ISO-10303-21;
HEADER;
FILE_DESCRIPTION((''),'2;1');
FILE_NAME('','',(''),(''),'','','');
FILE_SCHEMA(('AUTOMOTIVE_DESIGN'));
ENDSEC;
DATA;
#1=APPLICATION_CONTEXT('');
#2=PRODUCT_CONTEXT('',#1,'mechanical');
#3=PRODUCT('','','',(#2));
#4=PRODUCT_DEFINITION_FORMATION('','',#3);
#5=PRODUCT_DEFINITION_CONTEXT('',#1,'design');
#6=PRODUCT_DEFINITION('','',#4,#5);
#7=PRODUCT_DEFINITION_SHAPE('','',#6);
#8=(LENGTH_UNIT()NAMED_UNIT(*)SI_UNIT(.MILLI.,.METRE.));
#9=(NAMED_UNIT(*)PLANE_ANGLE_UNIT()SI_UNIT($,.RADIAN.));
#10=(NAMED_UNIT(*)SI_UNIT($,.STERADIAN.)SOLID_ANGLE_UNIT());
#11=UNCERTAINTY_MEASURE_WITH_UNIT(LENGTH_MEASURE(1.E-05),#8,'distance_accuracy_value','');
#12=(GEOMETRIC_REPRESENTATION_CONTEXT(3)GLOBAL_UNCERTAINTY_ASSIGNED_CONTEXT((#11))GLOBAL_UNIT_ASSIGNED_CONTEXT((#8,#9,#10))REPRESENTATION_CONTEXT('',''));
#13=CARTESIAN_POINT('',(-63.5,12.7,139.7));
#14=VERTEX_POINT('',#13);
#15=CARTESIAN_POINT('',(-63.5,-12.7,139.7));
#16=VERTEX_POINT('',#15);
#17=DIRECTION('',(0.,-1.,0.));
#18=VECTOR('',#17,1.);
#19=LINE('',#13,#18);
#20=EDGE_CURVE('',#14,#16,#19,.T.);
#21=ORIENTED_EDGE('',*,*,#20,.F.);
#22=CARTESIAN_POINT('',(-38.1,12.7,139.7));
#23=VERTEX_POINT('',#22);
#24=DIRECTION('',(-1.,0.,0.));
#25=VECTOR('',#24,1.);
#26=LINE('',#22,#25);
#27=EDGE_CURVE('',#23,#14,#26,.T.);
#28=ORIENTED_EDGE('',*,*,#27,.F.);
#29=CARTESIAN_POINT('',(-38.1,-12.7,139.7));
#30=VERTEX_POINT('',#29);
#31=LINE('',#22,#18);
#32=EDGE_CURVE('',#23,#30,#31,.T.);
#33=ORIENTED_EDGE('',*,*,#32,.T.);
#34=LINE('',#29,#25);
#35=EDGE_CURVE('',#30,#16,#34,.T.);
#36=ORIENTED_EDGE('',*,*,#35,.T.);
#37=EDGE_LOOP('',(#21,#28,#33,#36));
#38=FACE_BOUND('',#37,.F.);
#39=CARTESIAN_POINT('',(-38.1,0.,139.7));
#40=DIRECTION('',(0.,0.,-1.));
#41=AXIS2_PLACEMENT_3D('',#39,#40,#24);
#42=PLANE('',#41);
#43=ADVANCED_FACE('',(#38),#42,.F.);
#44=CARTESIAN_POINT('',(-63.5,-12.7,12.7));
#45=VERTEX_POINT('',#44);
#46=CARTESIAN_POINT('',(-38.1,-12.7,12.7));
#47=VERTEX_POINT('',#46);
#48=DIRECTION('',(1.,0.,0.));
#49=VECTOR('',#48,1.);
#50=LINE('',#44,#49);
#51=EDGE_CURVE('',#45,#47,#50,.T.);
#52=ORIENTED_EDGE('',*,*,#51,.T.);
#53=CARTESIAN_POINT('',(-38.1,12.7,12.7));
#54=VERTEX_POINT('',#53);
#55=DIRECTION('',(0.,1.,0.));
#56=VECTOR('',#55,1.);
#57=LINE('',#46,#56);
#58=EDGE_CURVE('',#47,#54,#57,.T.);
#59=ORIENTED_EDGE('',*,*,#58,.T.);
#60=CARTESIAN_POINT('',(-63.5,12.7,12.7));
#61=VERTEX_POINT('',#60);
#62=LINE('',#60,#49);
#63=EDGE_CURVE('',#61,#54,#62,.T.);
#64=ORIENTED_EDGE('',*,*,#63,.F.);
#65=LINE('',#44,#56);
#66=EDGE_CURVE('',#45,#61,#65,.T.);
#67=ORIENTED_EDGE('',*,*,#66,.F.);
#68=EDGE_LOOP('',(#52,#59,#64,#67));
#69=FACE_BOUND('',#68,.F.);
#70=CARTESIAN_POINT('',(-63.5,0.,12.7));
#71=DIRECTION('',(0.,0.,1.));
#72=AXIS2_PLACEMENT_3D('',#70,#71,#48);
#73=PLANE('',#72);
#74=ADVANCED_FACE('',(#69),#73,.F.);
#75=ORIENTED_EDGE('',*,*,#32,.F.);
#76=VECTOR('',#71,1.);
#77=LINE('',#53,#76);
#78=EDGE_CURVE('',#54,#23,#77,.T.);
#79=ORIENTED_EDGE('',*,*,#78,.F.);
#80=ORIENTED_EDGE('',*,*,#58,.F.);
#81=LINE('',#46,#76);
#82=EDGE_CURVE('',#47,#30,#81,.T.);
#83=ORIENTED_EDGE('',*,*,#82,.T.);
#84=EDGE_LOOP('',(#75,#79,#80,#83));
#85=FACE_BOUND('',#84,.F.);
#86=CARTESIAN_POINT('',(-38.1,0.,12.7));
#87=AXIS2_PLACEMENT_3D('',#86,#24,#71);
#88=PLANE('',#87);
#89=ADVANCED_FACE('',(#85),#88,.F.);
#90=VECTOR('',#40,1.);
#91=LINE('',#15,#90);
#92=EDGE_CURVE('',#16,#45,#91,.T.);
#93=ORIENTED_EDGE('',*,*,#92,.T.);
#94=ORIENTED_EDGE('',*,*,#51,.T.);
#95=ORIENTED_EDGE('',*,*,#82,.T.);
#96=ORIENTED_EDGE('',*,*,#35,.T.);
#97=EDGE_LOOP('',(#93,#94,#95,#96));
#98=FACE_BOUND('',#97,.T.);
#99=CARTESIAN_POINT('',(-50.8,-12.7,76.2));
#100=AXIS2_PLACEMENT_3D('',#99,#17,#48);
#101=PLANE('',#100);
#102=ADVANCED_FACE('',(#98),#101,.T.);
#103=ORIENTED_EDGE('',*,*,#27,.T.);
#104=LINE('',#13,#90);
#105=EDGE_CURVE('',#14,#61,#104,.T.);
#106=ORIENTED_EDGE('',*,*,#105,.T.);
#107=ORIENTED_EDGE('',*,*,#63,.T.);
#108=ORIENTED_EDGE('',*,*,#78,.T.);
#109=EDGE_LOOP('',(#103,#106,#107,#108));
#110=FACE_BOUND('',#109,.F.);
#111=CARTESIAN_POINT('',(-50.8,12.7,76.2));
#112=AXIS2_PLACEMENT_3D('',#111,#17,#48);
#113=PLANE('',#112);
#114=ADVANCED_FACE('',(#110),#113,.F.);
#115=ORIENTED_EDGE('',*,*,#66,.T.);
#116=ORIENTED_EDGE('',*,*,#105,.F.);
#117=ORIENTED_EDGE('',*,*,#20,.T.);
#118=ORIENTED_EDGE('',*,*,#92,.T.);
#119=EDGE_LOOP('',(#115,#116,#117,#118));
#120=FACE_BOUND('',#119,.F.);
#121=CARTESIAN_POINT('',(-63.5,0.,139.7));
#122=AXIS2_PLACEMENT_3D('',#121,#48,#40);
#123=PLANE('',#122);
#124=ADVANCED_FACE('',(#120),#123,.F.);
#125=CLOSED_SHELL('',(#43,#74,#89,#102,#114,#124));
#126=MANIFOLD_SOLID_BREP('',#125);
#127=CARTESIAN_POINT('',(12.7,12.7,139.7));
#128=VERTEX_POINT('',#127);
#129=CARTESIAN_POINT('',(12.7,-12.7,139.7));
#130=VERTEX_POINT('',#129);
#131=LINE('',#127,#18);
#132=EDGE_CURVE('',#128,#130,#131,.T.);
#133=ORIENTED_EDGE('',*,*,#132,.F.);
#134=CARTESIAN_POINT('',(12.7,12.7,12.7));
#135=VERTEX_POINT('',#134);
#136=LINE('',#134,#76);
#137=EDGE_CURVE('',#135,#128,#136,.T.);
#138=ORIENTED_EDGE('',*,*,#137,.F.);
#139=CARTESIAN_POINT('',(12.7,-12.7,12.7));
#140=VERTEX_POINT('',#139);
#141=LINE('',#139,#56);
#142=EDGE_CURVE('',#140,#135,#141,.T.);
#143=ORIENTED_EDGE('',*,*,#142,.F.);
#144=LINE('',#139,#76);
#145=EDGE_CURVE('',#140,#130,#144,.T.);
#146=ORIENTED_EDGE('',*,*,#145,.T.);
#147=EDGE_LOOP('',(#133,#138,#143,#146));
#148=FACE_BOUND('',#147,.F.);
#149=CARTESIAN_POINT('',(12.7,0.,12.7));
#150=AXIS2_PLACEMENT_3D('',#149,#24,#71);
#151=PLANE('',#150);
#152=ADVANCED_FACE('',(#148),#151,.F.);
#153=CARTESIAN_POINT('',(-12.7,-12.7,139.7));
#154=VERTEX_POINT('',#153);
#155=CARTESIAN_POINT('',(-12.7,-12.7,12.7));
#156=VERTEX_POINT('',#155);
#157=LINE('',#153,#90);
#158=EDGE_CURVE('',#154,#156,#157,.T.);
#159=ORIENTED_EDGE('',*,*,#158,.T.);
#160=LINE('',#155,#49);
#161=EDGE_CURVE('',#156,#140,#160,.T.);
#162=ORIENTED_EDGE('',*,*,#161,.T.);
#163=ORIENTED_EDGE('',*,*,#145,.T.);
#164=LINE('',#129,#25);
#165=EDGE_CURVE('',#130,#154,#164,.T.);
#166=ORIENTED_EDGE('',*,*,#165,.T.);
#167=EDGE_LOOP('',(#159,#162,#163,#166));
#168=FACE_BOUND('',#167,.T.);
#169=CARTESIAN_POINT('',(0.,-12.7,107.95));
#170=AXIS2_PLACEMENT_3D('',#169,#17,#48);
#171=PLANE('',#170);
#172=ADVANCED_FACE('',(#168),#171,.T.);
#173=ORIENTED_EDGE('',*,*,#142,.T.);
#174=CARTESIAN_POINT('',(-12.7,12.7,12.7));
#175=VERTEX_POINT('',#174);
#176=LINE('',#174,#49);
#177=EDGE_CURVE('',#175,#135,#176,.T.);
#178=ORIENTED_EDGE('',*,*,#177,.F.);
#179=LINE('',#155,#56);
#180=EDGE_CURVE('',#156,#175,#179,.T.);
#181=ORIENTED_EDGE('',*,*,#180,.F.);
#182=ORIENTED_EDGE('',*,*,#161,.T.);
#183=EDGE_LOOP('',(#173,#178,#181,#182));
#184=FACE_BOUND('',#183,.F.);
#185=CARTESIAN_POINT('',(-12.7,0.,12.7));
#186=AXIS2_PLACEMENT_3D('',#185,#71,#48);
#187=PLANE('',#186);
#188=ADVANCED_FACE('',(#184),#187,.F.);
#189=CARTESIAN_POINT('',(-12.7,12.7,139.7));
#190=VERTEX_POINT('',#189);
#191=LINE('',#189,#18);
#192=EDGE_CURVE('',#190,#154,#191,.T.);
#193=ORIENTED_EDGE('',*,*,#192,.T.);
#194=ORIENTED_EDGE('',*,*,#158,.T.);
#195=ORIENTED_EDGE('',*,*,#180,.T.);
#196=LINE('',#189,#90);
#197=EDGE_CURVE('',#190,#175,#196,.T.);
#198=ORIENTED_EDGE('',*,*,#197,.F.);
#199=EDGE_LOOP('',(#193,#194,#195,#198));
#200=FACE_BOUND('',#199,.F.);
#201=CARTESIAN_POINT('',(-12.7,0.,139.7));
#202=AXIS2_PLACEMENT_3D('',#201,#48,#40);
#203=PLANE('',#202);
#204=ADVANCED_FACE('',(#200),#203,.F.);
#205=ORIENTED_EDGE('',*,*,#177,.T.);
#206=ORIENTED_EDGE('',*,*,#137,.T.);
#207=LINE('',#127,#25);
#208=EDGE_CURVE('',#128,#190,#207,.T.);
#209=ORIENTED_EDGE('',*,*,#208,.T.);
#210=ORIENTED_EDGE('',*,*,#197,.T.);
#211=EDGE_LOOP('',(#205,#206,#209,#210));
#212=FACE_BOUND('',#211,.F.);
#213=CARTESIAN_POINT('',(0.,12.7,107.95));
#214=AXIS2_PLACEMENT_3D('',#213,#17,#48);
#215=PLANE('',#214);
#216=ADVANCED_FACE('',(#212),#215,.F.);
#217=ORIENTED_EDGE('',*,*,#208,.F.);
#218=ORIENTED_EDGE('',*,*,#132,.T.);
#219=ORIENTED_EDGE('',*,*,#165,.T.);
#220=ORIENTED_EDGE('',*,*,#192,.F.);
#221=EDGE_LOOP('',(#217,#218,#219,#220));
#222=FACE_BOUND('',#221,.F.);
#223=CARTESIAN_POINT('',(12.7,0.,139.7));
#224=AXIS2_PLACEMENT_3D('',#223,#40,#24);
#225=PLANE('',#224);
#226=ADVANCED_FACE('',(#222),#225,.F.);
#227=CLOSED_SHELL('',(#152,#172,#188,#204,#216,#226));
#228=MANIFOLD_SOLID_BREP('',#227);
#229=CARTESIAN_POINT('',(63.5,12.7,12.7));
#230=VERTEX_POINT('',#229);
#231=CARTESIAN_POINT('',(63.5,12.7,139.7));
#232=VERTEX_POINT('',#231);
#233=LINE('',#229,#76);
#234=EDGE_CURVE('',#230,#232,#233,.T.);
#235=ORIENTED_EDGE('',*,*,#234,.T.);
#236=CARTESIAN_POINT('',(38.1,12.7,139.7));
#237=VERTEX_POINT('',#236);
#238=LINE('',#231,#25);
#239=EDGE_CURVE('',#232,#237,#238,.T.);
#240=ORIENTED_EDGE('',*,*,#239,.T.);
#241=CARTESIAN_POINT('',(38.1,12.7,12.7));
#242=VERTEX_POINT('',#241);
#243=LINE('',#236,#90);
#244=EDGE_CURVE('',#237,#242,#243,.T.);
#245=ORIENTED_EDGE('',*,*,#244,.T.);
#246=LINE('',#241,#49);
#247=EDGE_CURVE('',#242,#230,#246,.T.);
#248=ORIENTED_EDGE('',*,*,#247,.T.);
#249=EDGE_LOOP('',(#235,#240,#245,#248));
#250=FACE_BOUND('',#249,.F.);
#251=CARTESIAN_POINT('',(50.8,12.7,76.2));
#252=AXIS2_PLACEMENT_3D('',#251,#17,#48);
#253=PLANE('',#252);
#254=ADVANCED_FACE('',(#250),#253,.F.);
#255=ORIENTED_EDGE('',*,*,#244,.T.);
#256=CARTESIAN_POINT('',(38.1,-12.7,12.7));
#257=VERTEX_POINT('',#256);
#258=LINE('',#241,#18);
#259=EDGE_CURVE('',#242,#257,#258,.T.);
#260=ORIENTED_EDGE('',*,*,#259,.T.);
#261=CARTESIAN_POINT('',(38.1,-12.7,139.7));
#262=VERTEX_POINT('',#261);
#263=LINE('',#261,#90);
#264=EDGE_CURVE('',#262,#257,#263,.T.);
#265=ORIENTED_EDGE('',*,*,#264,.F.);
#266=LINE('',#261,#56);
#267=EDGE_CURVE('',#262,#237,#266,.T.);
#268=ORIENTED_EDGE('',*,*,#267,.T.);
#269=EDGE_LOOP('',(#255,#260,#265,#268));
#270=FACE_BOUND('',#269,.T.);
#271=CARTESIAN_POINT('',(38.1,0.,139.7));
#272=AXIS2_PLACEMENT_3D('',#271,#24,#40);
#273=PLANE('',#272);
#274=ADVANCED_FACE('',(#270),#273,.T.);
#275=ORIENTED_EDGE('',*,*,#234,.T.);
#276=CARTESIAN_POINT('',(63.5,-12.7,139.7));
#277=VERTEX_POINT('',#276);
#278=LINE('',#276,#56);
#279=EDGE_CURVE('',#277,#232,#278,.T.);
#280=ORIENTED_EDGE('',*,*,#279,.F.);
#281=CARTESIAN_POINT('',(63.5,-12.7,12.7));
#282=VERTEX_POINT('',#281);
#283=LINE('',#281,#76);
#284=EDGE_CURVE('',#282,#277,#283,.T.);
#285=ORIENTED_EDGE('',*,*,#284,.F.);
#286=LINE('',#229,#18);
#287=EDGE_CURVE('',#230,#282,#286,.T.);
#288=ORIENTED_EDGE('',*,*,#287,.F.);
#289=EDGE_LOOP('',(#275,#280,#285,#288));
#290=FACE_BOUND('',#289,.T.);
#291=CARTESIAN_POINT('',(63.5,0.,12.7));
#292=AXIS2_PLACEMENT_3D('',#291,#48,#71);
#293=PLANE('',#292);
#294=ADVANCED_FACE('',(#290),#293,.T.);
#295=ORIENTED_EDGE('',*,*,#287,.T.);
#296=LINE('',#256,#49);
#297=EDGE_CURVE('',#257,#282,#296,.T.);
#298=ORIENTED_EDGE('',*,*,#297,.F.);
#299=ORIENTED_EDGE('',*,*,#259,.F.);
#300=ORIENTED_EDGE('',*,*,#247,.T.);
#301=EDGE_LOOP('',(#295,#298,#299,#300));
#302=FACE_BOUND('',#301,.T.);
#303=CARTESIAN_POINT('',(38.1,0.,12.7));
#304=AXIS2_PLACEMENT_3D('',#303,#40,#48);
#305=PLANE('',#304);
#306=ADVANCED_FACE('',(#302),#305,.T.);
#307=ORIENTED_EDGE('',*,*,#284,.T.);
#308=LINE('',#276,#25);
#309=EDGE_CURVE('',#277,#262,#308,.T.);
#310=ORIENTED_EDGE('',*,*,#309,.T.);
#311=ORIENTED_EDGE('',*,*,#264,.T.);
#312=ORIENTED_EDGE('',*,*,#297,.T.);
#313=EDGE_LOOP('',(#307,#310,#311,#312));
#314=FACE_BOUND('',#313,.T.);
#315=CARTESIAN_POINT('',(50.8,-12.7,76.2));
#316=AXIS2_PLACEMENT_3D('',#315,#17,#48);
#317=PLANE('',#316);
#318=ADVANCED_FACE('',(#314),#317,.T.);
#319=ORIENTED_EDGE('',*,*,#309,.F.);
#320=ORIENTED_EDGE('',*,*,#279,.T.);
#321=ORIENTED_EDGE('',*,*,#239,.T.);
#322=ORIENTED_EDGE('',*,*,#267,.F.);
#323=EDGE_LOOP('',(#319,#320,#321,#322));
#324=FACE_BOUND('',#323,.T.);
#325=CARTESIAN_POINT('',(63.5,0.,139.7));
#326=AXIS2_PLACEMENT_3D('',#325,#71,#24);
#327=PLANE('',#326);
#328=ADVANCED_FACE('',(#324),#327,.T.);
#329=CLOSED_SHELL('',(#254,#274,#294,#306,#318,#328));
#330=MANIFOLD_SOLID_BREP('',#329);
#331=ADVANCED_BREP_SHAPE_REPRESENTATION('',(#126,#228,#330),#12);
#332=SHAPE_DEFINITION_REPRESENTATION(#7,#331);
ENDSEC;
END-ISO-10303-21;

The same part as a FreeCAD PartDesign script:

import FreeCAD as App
import Part
import Sketcher

V = App.Vector
Q = App.Units.Quantity


def add_polygon(sketch, points):
    """Adds a closed chain of lines whose ends are joined by coincident constraints."""
    first, n = sketch.GeometryCount, len(points)
    for a, b in zip(points, points[1:] + points[:1]):
        sketch.addGeometry(Part.LineSegment(App.Vector(*a, 0), App.Vector(*b, 0)), False)
    for i in range(n):
        sketch.addConstraint(Sketcher.Constraint("Coincident", first + i, 2, first + (i + 1) % n, 1))

doc = App.newDocument("Part")
params = doc.addObject("Spreadsheet::Sheet", "Params")
for row, (alias, value) in enumerate([
    ("sketch1_width", "1 in"),
    ("sketch1_height", "5 in"),
    ("pad1_length", "1 in"),
], start=1):
    params.set(f"A{row}", alias)
    params.set(f"B{row}", "=" + value)
    params.setAlias(f"B{row}", alias)

body = doc.addObject("PartDesign::Body", "Body")
body.AllowCompound = True

sketch1 = body.newObject("Sketcher::SketchObject", "Sketch")
sketch1.AttachmentSupport = (doc.getObject("XZ_Plane"), [""])
sketch1.MapMode = "FlatFace"
add_polygon(sketch1, [(-38, 13), (-38, 140), (-64, 140), (-64, 13)])
add_polygon(sketch1, [(13, 13), (13, 140), (-13, 140), (-13, 13)])
add_polygon(sketch1, [(38, 140), (38, 13), (64, 13), (64, 140)])
sketch1.addConstraint([
    Sketcher.Constraint("Vertical", 0),
    Sketcher.Constraint("Horizontal", 1),
    Sketcher.Constraint("Vertical", 2),
    Sketcher.Constraint("Horizontal", 3),
    Sketcher.Constraint("Vertical", 4),
    Sketcher.Constraint("Horizontal", 5),
    Sketcher.Constraint("Vertical", 6),
    Sketcher.Constraint("Horizontal", 7),
    Sketcher.Constraint("Vertical", 8),
    Sketcher.Constraint("Horizontal", 9),
    Sketcher.Constraint("Vertical", 10),
    Sketcher.Constraint("Horizontal", 11),
    Sketcher.Constraint("Symmetric", 3, 2, 8, 2, -2),
    Sketcher.Constraint("Symmetric", 1, 2, 10, 2, -2),
    Sketcher.Constraint("Horizontal", 1, 2, 4, 2),
    Sketcher.Constraint("Horizontal", 3, 2, 6, 2),
    Sketcher.Constraint("Equal", 3, 5),
    Sketcher.Constraint("DistanceX", 1, 2, 1, 1, Q("1 in")),
    Sketcher.Constraint("DistanceY", 0, 1, 0, 2, Q("5 in")),
    Sketcher.Constraint("DistanceX", 0, 2, 4, 2, Q("2 in")),
    Sketcher.Constraint("DistanceX", 7, 2, 8, 2, Q("1 in")),
    Sketcher.Constraint("DistanceY", -1, 1, 0, 2, Q("5.5 in")),
])
sketch1.setExpression("Constraints[29]", "Params.sketch1_width")
sketch1.setExpression("Constraints[30]", "Params.sketch1_height")
pad1 = body.newObject("PartDesign::Pad", "Pad")
pad1.Profile = sketch1
pad1.setExpression("Length", "Params.pad1_length")
pad1.Midplane = True

doc.recompute()
